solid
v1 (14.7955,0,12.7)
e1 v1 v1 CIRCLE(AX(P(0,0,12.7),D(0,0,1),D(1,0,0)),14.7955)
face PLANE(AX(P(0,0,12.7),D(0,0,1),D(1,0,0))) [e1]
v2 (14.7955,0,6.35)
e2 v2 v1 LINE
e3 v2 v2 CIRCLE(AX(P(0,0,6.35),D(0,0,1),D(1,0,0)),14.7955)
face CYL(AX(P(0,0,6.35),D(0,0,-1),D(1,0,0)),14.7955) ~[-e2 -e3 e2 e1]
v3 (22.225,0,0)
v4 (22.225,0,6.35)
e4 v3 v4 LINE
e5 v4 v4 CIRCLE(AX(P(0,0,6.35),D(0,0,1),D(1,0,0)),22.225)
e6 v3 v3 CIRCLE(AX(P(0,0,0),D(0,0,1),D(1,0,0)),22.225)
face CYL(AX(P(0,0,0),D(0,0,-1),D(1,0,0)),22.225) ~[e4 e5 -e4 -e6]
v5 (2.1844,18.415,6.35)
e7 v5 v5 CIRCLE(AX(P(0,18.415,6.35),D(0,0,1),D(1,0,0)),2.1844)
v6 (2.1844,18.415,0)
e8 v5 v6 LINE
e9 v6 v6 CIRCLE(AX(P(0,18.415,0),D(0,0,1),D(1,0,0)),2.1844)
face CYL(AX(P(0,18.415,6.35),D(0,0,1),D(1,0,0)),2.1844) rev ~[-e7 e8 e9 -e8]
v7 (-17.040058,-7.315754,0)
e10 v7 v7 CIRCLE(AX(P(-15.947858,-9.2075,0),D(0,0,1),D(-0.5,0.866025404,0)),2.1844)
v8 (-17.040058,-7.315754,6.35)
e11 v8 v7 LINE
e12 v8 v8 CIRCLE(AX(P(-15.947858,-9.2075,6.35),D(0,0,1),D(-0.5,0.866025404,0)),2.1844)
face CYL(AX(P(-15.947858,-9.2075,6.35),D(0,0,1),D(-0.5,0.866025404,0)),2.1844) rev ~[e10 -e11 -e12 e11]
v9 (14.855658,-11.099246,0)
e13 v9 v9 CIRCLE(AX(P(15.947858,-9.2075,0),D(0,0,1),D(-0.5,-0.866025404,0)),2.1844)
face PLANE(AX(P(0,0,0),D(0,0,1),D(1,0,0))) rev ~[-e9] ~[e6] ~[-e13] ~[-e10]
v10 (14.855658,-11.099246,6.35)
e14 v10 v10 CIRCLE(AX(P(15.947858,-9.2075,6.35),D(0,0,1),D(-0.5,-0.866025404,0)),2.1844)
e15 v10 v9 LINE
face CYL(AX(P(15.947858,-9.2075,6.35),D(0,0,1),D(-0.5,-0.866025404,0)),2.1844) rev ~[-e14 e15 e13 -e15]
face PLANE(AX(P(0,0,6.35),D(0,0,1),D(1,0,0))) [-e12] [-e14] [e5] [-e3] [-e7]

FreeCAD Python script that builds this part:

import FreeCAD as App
import Part
import Sketcher

V = App.Vector
Q = App.Units.Quantity

doc = App.newDocument("Part")
params = doc.addObject("Spreadsheet::Sheet", "Params")
for row, (alias, value) in enumerate([
    ("sketch1_diameter", "1.75 in"),
    ("pad1_length", "0.25 in"),
    ("sketch2_diameter", "0.172 in"),
    ("pocket1_length", "0.25 in"),
    ("sketch3_diameter", "1.165 in"),
    ("pad2_length", "0.25 in"),
], start=1):
    params.set(f"A{row}", alias)
    params.set(f"B{row}", "=" + value)
    params.setAlias(f"B{row}", alias)

body = doc.addObject("PartDesign::Body", "Body")

# Sketch on XY plane
sketch1 = body.newObject("Sketcher::SketchObject", "Sketch")
sketch1.AttachmentSupport = (doc.getObject("XY_Plane"), [""])
sketch1.MapMode = "FlatFace"
sketch1.addGeometry(Part.Circle(V(0, 0, 0), V(0, 0, 1), 22), False)
sketch1.addConstraint(Sketcher.Constraint("Coincident", 0, 3, -1, 1))
sketch1.addConstraint(Sketcher.Constraint("Diameter", 0, Q("1.75 in")))
sketch1.setExpression("Constraints[1]", "Params.sketch1_diameter")
pad1 = body.newObject("PartDesign::Pad", "Pad")
pad1.Profile = sketch1
pad1.setExpression("Length", "Params.pad1_length")

# Sketch on XY plane
sketch2 = body.newObject("Sketcher::SketchObject", "Sketch001")
sketch2.AttachmentSupport = (doc.getObject("XY_Plane"), [""])
sketch2.MapMode = "FlatFace"
sketch2.AttachmentOffset = App.Placement(V(0, 0, 0.25 * 25.4), App.Rotation())
sketch2.addGeometry(Part.Circle(V(0, 18.4, 0), V(0, 0, 1), 2.2), False)
sketch2.addConstraint(Sketcher.Constraint("PointOnObject", 0, 3, -2))
sketch2.addConstraint(Sketcher.Constraint("Diameter", 0, Q("0.172 in")))
sketch2.addConstraint(Sketcher.Constraint("DistanceY", -1, 1, 0, 3, Q("0.725 in")))
sketch2.setExpression("Constraints[1]", "Params.sketch2_diameter")
pocket1 = body.newObject("PartDesign::Pocket", "Pocket")
pocket1.Profile = sketch2
pocket1.setExpression("Length", "Params.pocket1_length")
doc.recompute()

polarpattern = body.newObject("PartDesign::PolarPattern", "PolarPattern")
polarpattern.Originals = [pocket1]
polarpattern.Axis = (doc.getObject("Z_Axis"), [""])
polarpattern.Angle = 360
polarpattern.Occurrences = 3
body.Tip = polarpattern

# Sketch on XY plane
sketch3 = body.newObject("Sketcher::SketchObject", "Sketch002")
sketch3.AttachmentSupport = (doc.getObject("XY_Plane"), [""])
sketch3.MapMode = "FlatFace"
sketch3.AttachmentOffset = App.Placement(V(0, 0, 0.25 * 25.4), App.Rotation())
sketch3.addGeometry(Part.Circle(V(0, 0, 0), V(0, 0, 1), 15), False)
sketch3.addConstraint(Sketcher.Constraint("Coincident", 0, 3, -1, 1))
sketch3.addConstraint(Sketcher.Constraint("Diameter", 0, Q("1.165 in")))
sketch3.setExpression("Constraints[1]", "Params.sketch3_diameter")
pad2 = body.newObject("PartDesign::Pad", "Pad001")
pad2.Profile = sketch3
pad2.setExpression("Length", "Params.pad2_length")

doc.recompute()
